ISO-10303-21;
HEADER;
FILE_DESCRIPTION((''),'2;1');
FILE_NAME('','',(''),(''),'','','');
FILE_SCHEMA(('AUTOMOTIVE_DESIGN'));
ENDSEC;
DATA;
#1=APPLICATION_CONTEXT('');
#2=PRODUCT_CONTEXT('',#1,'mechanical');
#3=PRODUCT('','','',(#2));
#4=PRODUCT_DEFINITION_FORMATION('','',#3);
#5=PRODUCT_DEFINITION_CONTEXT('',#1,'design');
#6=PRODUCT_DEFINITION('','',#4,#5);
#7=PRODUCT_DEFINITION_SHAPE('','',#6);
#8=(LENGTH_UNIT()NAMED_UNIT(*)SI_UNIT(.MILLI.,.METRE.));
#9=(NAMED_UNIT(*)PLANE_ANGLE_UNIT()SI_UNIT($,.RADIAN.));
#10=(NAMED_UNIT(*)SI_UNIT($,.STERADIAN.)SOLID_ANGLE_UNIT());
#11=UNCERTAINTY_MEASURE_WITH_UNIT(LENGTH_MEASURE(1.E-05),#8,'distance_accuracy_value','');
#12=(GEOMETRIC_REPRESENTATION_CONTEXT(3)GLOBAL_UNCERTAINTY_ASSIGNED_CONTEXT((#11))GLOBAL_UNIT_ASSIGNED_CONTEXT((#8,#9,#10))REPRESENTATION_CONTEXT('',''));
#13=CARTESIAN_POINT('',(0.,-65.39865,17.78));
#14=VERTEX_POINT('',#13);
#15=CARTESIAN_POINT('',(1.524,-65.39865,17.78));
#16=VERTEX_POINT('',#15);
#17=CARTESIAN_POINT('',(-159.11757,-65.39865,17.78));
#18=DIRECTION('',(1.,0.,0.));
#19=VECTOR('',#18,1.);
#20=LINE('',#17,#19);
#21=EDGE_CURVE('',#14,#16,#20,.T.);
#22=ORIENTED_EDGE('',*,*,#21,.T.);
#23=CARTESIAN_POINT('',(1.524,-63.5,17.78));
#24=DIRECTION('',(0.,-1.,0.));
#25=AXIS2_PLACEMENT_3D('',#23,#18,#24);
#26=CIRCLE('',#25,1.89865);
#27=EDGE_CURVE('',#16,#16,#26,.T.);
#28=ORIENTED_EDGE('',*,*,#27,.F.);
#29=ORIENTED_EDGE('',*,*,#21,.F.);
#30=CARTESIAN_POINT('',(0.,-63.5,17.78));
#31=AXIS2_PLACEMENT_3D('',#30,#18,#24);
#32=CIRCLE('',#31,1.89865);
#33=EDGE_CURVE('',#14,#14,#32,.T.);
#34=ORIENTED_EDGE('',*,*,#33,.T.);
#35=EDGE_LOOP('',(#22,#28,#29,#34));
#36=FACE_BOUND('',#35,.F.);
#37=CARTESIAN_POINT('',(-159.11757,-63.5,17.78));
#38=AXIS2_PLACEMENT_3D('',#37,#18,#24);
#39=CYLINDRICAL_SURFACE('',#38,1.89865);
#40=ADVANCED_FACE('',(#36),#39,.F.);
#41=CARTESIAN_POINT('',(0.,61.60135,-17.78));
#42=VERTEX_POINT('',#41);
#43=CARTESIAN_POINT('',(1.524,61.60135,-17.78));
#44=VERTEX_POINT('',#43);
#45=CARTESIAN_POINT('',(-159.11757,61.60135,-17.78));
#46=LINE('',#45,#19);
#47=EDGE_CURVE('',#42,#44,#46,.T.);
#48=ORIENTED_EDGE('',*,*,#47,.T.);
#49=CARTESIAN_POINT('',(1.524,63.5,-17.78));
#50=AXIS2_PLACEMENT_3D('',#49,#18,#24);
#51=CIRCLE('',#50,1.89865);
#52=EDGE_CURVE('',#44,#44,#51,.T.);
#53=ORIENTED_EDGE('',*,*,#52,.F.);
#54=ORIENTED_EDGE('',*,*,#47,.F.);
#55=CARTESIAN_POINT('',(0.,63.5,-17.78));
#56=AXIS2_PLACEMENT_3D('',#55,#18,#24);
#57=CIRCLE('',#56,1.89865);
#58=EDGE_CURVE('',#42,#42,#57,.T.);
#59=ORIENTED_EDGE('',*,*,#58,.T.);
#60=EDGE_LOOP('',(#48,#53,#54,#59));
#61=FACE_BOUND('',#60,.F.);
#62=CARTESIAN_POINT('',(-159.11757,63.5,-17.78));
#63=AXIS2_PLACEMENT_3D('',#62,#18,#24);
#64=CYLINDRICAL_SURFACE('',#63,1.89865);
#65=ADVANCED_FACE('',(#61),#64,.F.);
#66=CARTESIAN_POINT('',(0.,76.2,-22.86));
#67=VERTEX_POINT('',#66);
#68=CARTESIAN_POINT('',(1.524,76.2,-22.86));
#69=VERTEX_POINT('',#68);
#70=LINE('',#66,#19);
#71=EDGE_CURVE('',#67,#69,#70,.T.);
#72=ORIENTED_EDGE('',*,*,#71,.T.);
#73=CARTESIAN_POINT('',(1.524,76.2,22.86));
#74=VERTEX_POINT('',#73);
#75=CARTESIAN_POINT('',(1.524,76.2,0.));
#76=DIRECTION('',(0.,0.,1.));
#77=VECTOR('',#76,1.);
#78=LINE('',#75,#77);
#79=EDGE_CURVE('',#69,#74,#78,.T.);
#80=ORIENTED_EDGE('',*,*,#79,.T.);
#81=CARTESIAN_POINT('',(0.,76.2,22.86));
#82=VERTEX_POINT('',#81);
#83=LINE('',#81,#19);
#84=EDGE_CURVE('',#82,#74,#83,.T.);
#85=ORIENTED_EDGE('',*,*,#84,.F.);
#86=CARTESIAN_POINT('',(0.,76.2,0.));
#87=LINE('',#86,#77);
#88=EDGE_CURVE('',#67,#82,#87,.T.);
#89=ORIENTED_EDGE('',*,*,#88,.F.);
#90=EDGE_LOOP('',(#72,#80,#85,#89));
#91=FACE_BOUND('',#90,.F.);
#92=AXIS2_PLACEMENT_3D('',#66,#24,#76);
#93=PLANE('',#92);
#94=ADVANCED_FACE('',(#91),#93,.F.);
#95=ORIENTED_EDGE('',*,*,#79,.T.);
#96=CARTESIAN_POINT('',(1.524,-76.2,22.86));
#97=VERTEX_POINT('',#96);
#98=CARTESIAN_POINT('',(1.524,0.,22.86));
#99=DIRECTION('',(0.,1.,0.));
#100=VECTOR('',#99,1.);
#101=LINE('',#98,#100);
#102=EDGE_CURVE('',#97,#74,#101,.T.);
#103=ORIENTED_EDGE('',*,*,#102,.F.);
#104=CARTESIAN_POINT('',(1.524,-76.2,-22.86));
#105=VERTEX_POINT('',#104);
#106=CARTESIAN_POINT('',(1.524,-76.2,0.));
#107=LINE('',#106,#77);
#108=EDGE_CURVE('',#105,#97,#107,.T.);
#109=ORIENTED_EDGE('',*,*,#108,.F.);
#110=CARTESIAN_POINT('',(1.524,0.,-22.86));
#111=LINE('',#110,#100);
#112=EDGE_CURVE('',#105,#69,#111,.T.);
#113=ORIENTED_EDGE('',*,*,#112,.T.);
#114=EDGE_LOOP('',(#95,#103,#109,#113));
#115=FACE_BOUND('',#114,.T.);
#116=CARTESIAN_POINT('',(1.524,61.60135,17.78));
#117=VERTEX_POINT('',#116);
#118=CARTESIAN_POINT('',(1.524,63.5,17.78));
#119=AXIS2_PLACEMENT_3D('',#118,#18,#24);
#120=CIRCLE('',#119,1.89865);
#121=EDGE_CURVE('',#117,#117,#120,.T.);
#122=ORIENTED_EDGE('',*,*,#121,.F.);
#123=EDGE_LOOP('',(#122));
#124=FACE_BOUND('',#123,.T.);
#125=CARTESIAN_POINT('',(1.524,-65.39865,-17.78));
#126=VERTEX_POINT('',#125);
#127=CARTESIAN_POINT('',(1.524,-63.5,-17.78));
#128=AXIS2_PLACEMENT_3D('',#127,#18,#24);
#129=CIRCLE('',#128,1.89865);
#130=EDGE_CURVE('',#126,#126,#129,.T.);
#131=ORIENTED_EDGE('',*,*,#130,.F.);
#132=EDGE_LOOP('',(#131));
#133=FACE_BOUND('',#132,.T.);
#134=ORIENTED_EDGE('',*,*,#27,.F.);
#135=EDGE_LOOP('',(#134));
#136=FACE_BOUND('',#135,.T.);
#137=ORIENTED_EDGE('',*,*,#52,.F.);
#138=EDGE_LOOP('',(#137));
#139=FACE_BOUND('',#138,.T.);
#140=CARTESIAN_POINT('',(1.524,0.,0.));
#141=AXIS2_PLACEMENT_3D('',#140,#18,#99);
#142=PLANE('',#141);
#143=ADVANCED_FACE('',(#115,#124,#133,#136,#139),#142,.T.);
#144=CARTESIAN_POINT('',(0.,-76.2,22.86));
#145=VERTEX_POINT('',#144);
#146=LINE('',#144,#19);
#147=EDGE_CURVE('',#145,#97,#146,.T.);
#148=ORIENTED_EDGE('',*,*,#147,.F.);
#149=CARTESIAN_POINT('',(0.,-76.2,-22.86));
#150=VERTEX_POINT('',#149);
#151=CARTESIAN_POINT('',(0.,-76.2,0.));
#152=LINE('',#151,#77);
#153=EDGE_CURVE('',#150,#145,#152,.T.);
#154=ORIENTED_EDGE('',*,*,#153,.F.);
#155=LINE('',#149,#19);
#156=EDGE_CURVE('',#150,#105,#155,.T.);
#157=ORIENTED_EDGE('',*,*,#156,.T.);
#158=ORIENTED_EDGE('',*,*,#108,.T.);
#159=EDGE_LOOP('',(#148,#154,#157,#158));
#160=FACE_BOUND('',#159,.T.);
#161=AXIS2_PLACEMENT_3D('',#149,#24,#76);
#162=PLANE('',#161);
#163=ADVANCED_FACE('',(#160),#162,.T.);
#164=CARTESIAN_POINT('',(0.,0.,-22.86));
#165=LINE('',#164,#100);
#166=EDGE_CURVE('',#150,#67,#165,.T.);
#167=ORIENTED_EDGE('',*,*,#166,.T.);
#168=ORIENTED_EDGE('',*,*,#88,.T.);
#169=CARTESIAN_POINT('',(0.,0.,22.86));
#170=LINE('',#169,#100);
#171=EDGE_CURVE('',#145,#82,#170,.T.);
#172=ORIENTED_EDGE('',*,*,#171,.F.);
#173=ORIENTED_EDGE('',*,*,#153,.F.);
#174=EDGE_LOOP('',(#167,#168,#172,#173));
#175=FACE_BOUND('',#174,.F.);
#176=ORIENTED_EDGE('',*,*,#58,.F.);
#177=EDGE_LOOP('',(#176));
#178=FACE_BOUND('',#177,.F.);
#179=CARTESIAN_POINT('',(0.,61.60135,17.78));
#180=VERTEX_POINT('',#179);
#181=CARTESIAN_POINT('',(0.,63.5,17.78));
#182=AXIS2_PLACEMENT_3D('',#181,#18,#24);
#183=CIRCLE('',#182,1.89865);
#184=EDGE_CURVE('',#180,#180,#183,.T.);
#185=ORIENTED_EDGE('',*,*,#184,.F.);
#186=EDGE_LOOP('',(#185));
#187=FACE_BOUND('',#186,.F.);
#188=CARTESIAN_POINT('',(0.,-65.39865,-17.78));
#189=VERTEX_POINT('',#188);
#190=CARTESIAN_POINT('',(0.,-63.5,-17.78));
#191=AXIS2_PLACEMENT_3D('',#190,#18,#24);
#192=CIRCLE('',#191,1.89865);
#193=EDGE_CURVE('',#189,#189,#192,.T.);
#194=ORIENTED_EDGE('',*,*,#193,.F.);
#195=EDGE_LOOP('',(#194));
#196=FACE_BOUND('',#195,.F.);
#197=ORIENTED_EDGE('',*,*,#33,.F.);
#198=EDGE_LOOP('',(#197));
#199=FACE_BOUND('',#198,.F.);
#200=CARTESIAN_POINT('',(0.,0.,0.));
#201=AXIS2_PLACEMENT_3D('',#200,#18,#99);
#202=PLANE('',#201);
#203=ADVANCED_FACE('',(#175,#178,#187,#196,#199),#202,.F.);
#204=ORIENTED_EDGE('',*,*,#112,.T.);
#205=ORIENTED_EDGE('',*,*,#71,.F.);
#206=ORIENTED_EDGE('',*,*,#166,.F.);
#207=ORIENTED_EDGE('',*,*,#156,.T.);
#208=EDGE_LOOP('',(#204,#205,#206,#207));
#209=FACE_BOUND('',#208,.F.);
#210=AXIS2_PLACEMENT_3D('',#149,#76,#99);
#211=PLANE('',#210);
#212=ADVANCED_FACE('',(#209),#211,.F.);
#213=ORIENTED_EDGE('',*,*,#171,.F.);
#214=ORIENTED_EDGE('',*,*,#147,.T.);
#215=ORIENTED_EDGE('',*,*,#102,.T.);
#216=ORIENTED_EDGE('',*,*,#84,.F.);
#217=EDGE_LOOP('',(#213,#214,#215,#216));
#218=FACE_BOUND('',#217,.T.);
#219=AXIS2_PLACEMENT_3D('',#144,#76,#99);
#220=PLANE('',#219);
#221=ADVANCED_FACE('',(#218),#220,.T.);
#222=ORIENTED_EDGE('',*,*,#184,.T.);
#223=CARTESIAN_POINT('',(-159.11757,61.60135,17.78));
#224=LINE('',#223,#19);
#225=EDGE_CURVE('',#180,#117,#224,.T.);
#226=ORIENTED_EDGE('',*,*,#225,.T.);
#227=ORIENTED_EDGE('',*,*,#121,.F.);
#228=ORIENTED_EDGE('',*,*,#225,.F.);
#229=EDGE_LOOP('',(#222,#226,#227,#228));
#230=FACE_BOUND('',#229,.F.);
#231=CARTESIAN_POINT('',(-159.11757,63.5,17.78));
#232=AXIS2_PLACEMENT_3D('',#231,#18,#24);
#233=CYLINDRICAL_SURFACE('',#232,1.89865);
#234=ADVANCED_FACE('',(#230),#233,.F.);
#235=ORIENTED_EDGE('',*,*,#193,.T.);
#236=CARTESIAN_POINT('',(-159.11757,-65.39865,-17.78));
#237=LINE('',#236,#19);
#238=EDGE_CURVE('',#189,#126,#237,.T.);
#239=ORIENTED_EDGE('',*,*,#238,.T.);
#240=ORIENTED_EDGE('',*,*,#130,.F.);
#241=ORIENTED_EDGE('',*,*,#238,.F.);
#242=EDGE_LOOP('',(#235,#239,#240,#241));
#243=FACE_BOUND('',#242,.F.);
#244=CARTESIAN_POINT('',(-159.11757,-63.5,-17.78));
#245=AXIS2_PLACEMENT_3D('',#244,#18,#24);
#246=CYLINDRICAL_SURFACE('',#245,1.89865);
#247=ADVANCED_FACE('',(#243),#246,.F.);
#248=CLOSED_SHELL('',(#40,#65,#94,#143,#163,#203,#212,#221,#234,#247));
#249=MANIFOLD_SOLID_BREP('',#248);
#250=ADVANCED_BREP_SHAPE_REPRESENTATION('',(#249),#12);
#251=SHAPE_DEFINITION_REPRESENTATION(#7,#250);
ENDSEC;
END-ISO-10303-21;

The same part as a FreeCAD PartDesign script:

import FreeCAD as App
import Part
import Sketcher
Q = App.Units.Quantity


def add_polygon(sketch, points):
    """Adds a closed chain of lines whose ends are joined by coincident constraints."""
    first, n = sketch.GeometryCount, len(points)
    for a, b in zip(points, points[1:] + points[:1]):
        sketch.addGeometry(Part.LineSegment(App.Vector(*a, 0), App.Vector(*b, 0)), False)
    for i in range(n):
        sketch.addConstraint(Sketcher.Constraint("Coincident", first + i, 2, first + (i + 1) % n, 1))

doc = App.newDocument("Part")
body = doc.addObject("PartDesign::Body", "Body")

# Sketch on YZ plane
sketch1 = body.newObject("Sketcher::SketchObject", "Sketch")
sketch1.AttachmentSupport = (doc.getObject("YZ_Plane"), [""])
sketch1.MapMode = "FlatFace"
add_polygon(sketch1, [(-76, 23), (-76, -23), (76, -23), (76, 23)])  # lines 0-3
sketch1.addConstraint(Sketcher.Constraint("Vertical", 0))
sketch1.addConstraint(Sketcher.Constraint("Horizontal", 1))
sketch1.addConstraint(Sketcher.Constraint("Vertical", 2))
sketch1.addConstraint(Sketcher.Constraint("Horizontal", 3))
sketch1.addConstraint(Sketcher.Constraint("Symmetric", 0, 2, 2, 2, -1, 1))
sketch1.addConstraint(Sketcher.Constraint("DistanceX", 1, 1, 1, 2, Q("6 in")))
sketch1.addConstraint(Sketcher.Constraint("DistanceY", 0, 2, 0, 1, Q("1.8 in")))
pad1 = body.newObject("PartDesign::Pad", "Pad")
pad1.Profile = sketch1
pad1.Length = Q("0.06 in")

# Sketch on YZ plane
sketch2 = body.newObject("Sketcher::SketchObject", "Sketch001")
sketch2.AttachmentSupport = (doc.getObject("YZ_Plane"), [""])
sketch2.MapMode = "FlatFace"
sketch2.addGeometry(Part.Circle(App.Vector(-63.5, 17.8, 0), App.Vector(0, 0, 1), 1.9), False)
sketch2.addGeometry(Part.Circle(App.Vector(63.5, 17.8, 0), App.Vector(0, 0, 1), 1.9), False)
sketch2.addGeometry(Part.Circle(App.Vector(63.5, -17.8, 0), App.Vector(0, 0, 1), 1.9), False)
sketch2.addGeometry(Part.Circle(App.Vector(-63.5, -17.8, 0), App.Vector(0, 0, 1), 1.9), False)
sketch2.addConstraint(Sketcher.Constraint("Equal", 0, 1))
sketch2.addConstraint(Sketcher.Constraint("Equal", 1, 2))
sketch2.addConstraint(Sketcher.Constraint("Equal", 2, 3))
sketch2.addConstraint(Sketcher.Constraint("Symmetric", 0, 3, 2, 3, -1, 1))
sketch2.addConstraint(Sketcher.Constraint("Symmetric", 1, 3, 3, 3, -1, 1))
sketch2.addConstraint(Sketcher.Constraint("Symmetric", 0, 3, 1, 3, -2))
sketch2.addConstraint(Sketcher.Constraint("DistanceX", 0, 3, 1, 3, Q("5 in")))
sketch2.addConstraint(Sketcher.Constraint("Diameter", 0, Q("0.1495 in")))
sketch2.addConstraint(Sketcher.Constraint("DistanceY", -1, 1, 0, 3, Q("0.7 in")))
doc.recompute()
hole = body.newObject("PartDesign::Hole", "Hole")
hole.Profile = sketch2
hole.ThreadType = "None"
hole.Diameter = Q("0.1495 in")
hole.DepthType = "ThroughAll"
hole.Reversed = True

doc.recompute()
